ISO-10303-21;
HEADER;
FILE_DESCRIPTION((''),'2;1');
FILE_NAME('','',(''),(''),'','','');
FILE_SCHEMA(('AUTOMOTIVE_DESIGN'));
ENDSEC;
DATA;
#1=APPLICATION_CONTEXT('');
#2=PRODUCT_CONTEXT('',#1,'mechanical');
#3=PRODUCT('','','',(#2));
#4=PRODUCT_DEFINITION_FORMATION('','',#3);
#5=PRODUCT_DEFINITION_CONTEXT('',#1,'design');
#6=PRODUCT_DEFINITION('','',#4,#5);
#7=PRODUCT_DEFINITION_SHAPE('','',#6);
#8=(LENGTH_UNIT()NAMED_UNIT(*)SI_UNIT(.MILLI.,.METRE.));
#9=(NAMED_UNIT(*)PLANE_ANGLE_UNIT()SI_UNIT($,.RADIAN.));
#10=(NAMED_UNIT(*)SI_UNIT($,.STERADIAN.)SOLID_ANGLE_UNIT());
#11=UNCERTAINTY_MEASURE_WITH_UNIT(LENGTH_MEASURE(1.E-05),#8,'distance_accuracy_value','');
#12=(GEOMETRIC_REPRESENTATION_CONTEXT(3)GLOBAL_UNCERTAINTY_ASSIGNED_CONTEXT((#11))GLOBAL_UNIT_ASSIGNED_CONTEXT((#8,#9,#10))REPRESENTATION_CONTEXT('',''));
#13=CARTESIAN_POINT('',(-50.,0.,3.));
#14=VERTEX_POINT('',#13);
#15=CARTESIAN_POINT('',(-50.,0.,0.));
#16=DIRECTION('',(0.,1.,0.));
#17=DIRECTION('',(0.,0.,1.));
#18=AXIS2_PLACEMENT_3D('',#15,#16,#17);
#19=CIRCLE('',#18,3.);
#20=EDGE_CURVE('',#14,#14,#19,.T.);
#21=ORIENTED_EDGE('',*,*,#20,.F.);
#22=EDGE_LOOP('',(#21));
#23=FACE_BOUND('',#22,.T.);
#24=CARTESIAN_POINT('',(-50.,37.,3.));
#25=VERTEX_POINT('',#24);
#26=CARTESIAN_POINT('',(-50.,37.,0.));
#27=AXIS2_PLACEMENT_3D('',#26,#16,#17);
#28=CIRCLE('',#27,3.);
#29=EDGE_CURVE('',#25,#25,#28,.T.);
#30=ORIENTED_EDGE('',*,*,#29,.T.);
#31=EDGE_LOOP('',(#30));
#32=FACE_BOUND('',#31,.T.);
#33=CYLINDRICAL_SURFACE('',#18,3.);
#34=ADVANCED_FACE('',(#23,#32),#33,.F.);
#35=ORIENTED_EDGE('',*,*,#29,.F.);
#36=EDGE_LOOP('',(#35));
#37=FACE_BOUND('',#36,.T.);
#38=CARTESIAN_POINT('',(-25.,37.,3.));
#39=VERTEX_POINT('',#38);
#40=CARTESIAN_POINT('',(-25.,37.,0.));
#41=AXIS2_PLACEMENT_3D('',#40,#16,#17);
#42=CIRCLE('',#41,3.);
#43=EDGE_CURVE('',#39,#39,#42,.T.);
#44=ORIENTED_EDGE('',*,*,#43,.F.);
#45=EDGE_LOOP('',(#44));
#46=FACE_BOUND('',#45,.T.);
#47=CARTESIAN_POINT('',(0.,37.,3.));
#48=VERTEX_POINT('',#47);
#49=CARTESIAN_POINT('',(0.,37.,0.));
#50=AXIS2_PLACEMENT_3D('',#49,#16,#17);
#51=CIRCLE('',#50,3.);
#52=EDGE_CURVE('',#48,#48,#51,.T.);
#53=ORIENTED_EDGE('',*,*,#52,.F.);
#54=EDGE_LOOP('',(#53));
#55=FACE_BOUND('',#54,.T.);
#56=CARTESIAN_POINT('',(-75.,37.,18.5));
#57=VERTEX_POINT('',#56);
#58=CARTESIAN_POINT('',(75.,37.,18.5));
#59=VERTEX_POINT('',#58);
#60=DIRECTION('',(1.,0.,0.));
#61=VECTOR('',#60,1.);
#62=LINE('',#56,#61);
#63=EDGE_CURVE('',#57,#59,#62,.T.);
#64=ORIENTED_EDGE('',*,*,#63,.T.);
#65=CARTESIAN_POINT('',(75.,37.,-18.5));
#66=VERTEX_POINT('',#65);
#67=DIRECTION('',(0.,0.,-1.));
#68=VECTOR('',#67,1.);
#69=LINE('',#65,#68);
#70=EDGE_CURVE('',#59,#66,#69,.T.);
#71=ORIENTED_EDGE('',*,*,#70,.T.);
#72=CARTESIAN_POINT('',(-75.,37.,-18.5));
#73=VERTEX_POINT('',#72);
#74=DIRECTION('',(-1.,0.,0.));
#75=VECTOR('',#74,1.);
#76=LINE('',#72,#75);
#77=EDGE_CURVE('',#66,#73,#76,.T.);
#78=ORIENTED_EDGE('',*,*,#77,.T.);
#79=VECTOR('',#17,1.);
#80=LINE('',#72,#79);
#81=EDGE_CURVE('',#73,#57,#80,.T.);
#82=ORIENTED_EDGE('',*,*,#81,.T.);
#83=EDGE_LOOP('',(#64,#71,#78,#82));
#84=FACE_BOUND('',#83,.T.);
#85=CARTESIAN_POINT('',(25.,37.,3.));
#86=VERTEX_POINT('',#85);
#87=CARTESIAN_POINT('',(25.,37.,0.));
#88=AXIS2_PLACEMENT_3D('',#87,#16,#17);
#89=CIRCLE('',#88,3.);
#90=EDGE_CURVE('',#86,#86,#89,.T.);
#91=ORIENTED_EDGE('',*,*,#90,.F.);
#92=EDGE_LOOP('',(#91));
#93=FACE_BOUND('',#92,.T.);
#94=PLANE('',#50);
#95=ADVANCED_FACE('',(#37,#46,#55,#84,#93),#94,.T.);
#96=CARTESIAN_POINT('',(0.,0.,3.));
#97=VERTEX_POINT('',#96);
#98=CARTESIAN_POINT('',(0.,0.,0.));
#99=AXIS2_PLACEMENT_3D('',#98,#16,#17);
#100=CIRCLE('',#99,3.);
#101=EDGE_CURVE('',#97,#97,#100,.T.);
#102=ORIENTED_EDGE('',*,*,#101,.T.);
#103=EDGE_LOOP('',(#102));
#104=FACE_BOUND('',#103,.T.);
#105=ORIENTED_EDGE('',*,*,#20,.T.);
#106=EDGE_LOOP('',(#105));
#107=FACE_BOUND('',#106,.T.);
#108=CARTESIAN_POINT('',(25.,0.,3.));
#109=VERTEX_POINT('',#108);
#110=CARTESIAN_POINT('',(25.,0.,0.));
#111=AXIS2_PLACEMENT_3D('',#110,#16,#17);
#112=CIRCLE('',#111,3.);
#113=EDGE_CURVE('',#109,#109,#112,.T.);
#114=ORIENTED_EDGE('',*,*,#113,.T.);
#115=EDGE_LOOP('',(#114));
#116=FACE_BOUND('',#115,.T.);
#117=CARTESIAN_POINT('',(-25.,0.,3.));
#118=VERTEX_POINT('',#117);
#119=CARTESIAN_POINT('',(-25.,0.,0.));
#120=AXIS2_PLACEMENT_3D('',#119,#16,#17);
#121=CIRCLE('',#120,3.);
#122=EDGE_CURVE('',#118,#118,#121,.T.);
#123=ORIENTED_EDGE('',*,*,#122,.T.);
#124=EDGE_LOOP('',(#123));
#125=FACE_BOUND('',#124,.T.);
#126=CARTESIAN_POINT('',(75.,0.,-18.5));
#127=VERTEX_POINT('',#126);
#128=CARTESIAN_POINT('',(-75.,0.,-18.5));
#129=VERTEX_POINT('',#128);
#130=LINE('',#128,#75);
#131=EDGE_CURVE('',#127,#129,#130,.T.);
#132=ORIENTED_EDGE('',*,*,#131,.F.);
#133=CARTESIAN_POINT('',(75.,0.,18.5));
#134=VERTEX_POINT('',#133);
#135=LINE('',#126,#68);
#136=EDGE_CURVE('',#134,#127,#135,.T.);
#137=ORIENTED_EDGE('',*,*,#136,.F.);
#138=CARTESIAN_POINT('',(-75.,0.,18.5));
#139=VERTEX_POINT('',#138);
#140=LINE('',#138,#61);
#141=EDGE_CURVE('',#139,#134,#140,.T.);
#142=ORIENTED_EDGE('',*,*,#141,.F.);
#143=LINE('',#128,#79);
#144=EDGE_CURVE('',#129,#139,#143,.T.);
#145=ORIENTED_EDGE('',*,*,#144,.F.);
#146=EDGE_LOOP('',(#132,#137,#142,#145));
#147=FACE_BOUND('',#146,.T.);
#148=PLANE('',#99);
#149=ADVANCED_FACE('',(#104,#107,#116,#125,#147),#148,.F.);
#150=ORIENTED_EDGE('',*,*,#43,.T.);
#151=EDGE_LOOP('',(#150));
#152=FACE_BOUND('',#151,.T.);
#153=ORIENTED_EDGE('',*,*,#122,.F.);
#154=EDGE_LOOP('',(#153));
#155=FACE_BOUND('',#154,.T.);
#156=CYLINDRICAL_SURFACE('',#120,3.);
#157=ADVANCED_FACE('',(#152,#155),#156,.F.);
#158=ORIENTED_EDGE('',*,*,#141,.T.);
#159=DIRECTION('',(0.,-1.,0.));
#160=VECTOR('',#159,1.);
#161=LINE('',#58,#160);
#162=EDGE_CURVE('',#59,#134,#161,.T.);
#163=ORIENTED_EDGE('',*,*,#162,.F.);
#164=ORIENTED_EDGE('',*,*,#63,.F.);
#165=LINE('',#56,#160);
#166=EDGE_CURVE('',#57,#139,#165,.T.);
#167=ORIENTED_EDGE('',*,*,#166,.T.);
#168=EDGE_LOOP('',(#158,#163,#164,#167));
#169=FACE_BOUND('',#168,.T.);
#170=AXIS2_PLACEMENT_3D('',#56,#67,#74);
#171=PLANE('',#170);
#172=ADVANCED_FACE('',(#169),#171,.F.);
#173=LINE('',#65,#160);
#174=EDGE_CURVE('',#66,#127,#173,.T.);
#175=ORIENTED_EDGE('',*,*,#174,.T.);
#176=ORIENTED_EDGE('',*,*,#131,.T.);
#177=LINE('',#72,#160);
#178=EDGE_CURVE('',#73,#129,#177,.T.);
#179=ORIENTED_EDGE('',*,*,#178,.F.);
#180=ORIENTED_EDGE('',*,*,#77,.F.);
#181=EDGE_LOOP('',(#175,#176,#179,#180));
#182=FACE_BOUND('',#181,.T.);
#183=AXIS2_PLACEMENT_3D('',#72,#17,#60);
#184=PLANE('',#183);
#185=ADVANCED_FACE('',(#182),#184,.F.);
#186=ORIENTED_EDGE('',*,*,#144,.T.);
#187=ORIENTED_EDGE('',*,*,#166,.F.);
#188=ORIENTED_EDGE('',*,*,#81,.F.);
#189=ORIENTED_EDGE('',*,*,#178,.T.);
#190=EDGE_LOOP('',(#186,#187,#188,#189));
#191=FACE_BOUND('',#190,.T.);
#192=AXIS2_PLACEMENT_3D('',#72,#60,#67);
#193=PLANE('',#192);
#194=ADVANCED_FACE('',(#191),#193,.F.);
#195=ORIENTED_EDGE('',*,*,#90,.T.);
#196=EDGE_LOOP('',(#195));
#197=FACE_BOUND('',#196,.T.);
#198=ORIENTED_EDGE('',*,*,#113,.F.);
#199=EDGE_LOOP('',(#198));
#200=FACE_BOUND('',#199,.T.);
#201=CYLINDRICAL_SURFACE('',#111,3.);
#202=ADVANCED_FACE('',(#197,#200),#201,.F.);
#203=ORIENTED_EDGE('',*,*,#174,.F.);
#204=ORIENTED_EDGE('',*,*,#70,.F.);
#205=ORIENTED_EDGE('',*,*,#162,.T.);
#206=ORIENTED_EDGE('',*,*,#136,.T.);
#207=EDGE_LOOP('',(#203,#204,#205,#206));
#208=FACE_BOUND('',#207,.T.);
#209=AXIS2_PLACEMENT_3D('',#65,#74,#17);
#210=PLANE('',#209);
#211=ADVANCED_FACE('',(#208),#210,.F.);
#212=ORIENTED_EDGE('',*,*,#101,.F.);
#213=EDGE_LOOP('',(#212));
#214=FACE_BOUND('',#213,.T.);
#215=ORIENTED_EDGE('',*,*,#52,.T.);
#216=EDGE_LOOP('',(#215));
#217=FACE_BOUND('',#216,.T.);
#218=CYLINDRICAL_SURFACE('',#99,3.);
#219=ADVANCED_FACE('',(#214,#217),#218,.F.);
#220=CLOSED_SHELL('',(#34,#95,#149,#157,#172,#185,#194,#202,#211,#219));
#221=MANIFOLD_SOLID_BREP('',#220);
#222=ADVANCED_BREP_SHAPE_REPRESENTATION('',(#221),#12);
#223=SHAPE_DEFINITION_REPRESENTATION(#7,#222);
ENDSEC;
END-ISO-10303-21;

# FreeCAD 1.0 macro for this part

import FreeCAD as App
import Part
import Sketcher
from FreeCAD import Vector
Q = App.Units.Quantity


def add_polygon(sketch, points):
    """Adds a closed chain of lines whose ends are joined by coincident constraints."""
    first, n = sketch.GeometryCount, len(points)
    for a, b in zip(points, points[1:] + points[:1]):
        sketch.addGeometry(Part.LineSegment(App.Vector(*a, 0), App.Vector(*b, 0)), False)
    for i in range(n):
        sketch.addConstraint(Sketcher.Constraint("Coincident", first + i, 2, first + (i + 1) % n, 1))

doc = App.newDocument("Part")
body = doc.addObject("PartDesign::Body", "Body")

sketch1 = doc.addObject("Sketcher::SketchObject", "Sketch")
body.addObject(sketch1)
sketch1.AttachmentSupport = (doc.XZ_Plane, [""])
sketch1.MapMode = "FlatFace"
add_polygon(sketch1, [(-75, -18), (-75, 18), (75, 18), (75, -18)])
sketch1.addConstraint([
    Sketcher.Constraint("Vertical", 0),
    Sketcher.Constraint("Horizontal", 1),
    Sketcher.Constraint("Vertical", 2),
    Sketcher.Constraint("Horizontal", 3),
    Sketcher.Constraint("Symmetric", 0, 2, 2, 2, -1, 1),
    Sketcher.Constraint("DistanceX", 1, 1, 1, 2, Q("150 mm")),
    Sketcher.Constraint("DistanceY", 0, 1, 0, 2, Q("37 mm")),
])
pad1 = doc.addObject("PartDesign::Pad", "Pad")
body.addObject(pad1)
pad1.Profile = sketch1
pad1.Length = 37
pad1.Reversed = True

sketch2 = doc.addObject("Sketcher::SketchObject", "Sketch001")
body.addObject(sketch2)
sketch2.AttachmentSupport = (doc.XZ_Plane, [""])
sketch2.MapMode = "FlatFace"
sketch2.AttachmentOffset = App.Placement(Vector(0, 0, -37), App.Rotation())
sketch2.addGeometry([
    Part.Circle(Vector(-50, 0, 0), Vector(0, 0, 1), 3),
    Part.Circle(Vector(-25, 0, 0), Vector(0, 0, 1), 3),
    Part.Circle(Vector(0, 0, 0), Vector(0, 0, 1), 3),
    Part.Circle(Vector(25, 0, 0), Vector(0, 0, 1), 3),
], False)
sketch2.addConstraint([
    Sketcher.Constraint("Coincident", 2, 3, -1, 1),
    Sketcher.Constraint("Equal", 0, 1),
    Sketcher.Constraint("Equal", 1, 2),
    Sketcher.Constraint("Equal", 2, 3),
    Sketcher.Constraint("Symmetric", 1, 3, 3, 3, -1, 1),
    Sketcher.Constraint("PointOnObject", 0, 3, -1),
    Sketcher.Constraint("PointOnObject", 1, 3, -1),
    Sketcher.Constraint("Diameter", 0, Q("6 mm")),
    Sketcher.Constraint("DistanceX", 0, 3, -1, 1, Q("50 mm")),
    Sketcher.Constraint("DistanceX", 1, 3, -1, 1, Q("25 mm")),
])
pocket1 = doc.addObject("PartDesign::Pocket", "Pocket")
body.addObject(pocket1)
pocket1.Profile = sketch2
pocket1.Length = 37
pocket1.Reversed = True

doc.recompute()
